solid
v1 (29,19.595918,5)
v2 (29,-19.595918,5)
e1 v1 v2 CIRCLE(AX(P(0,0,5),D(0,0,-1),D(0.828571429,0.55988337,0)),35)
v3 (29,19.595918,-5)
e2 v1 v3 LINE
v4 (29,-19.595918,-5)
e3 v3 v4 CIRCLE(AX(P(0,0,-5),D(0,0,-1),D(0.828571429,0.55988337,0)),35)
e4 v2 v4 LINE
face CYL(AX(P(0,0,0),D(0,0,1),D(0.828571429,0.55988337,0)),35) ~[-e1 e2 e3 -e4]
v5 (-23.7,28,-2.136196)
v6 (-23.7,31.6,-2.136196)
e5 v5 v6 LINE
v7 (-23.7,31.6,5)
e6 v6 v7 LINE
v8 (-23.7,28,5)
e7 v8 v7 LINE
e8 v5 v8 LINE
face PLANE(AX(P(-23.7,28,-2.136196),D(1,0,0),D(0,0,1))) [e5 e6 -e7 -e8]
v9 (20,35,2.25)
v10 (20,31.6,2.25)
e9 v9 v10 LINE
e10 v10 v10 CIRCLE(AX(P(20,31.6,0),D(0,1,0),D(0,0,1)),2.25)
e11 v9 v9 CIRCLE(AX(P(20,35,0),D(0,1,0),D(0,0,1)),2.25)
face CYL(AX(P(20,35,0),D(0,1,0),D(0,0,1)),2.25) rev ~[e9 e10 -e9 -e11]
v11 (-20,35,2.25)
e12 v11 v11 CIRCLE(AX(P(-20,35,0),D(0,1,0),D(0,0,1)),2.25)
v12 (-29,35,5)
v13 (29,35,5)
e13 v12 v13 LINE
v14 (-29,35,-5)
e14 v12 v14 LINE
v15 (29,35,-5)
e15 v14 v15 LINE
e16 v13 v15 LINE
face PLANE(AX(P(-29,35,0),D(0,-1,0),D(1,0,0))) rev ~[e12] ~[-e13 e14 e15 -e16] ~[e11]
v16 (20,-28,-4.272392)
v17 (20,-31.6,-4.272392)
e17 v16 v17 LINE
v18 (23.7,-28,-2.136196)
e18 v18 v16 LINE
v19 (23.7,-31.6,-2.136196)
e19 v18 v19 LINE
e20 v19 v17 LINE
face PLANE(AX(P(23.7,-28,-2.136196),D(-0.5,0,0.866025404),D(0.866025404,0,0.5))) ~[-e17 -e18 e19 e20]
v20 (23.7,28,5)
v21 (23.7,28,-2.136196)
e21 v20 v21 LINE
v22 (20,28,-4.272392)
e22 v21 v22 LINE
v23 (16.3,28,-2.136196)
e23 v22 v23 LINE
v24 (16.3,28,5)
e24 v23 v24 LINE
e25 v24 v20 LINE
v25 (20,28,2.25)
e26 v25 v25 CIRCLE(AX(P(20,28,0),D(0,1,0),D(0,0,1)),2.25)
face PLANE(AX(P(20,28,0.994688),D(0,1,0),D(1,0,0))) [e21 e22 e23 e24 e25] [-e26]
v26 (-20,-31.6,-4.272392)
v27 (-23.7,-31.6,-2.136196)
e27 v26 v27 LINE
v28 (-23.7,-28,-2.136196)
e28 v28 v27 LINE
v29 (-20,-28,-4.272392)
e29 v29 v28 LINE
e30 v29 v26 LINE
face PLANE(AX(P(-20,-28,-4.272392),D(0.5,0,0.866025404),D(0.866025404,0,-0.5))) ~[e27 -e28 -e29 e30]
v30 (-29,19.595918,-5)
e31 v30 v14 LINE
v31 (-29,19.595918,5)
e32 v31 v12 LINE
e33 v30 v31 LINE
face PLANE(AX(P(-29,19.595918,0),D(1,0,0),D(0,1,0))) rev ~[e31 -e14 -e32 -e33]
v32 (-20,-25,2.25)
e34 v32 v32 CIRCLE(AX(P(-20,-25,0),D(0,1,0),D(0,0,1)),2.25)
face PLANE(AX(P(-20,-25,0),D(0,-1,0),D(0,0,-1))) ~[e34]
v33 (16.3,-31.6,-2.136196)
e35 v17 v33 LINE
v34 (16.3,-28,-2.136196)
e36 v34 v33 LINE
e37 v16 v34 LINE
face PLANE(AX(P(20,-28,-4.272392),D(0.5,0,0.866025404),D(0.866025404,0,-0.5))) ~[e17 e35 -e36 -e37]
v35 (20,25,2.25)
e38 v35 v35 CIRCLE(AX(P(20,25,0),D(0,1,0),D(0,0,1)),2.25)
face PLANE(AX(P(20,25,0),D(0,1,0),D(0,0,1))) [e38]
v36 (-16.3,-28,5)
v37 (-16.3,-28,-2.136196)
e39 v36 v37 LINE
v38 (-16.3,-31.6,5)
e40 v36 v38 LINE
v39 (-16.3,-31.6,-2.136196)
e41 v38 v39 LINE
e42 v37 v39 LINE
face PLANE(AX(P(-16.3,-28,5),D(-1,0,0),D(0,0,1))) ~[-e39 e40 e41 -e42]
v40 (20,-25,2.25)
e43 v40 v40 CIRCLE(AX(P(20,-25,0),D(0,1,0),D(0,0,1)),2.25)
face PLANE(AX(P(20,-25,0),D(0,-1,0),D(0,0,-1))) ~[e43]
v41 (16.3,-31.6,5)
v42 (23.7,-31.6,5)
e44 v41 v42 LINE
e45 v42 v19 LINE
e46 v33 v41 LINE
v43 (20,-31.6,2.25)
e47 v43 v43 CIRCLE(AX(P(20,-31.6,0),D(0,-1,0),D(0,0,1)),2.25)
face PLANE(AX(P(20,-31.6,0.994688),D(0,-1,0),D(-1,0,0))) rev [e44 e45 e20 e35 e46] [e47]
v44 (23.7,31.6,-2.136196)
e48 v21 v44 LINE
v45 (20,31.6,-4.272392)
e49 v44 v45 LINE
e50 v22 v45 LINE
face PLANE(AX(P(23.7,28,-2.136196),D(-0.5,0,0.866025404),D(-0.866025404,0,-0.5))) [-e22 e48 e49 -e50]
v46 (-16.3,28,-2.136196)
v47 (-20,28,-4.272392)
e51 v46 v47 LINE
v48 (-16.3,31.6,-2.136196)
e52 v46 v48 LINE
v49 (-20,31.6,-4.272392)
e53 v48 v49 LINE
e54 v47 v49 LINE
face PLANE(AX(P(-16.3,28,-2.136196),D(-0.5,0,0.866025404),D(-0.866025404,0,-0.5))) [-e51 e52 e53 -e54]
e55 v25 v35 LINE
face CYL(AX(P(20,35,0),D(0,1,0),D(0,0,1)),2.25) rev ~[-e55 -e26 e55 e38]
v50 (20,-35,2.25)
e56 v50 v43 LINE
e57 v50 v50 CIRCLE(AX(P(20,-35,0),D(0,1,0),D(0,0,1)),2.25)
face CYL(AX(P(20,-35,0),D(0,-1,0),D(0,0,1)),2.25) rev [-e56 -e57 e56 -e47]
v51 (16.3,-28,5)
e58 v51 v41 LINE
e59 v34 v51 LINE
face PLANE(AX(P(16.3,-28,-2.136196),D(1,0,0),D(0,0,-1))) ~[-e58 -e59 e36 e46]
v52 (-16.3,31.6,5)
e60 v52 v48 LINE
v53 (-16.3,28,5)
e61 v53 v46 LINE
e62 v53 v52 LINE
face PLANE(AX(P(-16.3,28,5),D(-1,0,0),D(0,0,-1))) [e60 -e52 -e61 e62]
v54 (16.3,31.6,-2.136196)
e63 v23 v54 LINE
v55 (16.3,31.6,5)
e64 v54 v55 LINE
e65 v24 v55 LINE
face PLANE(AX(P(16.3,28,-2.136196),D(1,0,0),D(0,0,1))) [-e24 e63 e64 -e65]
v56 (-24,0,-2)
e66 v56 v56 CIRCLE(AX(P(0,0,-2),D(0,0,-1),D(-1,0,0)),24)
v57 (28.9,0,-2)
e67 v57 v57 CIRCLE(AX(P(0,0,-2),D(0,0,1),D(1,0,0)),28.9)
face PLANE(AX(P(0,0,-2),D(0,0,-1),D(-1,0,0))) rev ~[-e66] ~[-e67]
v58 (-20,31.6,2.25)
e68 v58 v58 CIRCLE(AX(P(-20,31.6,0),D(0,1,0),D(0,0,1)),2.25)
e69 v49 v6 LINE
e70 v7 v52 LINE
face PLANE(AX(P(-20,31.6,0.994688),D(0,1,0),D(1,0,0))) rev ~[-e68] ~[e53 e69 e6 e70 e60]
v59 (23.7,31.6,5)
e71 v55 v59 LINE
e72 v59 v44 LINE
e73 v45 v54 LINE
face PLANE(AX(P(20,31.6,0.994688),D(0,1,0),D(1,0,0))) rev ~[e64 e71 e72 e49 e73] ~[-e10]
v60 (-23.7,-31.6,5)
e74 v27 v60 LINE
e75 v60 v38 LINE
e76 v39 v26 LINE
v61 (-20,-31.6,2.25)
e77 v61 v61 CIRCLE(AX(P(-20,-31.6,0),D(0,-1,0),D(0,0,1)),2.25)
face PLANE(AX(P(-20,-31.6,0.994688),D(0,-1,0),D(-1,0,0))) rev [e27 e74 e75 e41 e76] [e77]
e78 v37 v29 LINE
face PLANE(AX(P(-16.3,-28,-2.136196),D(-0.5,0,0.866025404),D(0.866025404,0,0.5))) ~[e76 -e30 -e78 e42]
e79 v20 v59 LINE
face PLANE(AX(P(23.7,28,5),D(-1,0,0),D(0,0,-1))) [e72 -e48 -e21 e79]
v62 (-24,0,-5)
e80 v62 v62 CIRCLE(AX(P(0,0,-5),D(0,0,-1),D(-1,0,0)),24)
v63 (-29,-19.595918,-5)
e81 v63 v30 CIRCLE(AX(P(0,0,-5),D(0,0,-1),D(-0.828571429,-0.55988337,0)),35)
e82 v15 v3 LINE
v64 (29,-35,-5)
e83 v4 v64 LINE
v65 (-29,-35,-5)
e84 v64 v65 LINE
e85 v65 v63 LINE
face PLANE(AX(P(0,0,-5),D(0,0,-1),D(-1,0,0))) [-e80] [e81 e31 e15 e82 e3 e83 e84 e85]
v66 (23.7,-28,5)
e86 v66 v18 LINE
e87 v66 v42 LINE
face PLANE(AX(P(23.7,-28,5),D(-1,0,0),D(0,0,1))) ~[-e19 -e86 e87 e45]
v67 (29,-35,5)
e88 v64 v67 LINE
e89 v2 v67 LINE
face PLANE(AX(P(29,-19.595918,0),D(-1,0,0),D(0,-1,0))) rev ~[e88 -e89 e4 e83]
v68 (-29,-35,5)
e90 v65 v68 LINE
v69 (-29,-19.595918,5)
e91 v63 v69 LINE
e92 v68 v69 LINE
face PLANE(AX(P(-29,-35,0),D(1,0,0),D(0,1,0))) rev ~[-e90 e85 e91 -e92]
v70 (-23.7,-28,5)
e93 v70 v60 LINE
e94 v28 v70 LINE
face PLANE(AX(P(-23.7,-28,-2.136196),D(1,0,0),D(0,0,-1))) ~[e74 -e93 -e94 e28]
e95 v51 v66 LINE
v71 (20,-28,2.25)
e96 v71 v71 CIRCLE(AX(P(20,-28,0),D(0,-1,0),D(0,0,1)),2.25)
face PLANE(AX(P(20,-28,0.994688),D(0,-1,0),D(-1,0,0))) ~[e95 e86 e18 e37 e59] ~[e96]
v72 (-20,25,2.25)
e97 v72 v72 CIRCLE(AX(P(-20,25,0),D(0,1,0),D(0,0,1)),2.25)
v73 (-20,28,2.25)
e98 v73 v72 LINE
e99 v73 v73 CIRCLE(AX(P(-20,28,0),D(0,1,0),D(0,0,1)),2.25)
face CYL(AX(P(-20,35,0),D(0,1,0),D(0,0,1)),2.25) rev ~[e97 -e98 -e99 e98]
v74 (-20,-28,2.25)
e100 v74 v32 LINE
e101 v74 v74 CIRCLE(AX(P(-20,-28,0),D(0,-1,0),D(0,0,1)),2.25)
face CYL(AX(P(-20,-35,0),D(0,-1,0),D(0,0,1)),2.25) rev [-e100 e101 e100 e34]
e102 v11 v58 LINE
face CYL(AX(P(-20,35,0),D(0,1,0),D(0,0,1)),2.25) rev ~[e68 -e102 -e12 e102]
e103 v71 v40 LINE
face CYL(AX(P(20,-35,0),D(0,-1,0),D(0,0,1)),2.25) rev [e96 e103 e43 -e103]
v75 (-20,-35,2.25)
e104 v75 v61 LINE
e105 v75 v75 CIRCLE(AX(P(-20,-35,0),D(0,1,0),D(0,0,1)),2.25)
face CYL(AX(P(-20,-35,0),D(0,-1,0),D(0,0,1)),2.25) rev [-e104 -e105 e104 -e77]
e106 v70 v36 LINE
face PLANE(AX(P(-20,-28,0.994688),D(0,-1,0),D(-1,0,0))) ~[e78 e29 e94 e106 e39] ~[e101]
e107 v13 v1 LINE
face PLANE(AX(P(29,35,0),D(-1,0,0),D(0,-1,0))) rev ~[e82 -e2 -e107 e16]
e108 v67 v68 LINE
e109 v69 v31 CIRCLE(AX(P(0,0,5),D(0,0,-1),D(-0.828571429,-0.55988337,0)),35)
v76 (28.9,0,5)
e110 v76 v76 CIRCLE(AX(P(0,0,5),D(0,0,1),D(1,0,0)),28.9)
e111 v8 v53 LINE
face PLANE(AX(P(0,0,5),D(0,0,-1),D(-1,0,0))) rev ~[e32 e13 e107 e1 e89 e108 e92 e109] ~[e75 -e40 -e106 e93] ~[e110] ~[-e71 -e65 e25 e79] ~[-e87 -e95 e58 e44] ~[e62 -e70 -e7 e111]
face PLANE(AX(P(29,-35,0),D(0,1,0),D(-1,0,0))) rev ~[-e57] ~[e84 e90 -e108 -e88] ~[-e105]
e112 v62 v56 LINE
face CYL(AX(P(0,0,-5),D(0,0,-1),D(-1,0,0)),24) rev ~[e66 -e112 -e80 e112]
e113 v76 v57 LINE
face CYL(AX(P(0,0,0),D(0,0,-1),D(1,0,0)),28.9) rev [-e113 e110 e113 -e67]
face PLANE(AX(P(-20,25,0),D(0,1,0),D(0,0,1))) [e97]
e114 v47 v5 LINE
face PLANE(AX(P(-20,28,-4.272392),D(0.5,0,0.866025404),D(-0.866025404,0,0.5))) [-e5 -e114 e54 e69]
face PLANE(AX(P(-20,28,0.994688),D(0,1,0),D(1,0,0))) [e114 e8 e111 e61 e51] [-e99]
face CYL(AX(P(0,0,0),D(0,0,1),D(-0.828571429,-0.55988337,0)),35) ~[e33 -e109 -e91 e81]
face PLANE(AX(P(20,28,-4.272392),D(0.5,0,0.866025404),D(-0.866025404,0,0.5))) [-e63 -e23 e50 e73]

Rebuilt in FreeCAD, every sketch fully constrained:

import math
import FreeCAD as App
import Part
import Sketcher
Q = App.Units.Quantity


def add_polygon(sketch, points):
    """Adds a closed chain of lines whose ends are joined by coincident constraints."""
    first, n = sketch.GeometryCount, len(points)
    for a, b in zip(points, points[1:] + points[:1]):
        sketch.addGeometry(Part.LineSegment(App.Vector(*a, 0), App.Vector(*b, 0)), False)
    for i in range(n):
        sketch.addConstraint(Sketcher.Constraint("Coincident", first + i, 2, first + (i + 1) % n, 1))

doc = App.newDocument("Part")
body = doc.addObject("PartDesign::Body", "Body")

sketch1 = body.newObject("Sketcher::SketchObject", "Sketch")
sketch1.AttachmentSupport = (doc.getObject("XY_Plane"), [""])
sketch1.MapMode = "FlatFace"
sketch1.addGeometry([
    Part.LineSegment(App.Vector(-29, 35, 0), App.Vector(-29, 20, 0)),
    Part.ArcOfCircle(Part.Circle(App.Vector(0, 0, 0), App.Vector(0, 0, 1), 35), math.radians(146), math.radians(214)),
    Part.LineSegment(App.Vector(-29, -20, 0), App.Vector(-29, -35, 0)),
    Part.LineSegment(App.Vector(-29, -35, 0), App.Vector(29, -35, 0)),
    Part.LineSegment(App.Vector(29, -35, 0), App.Vector(29, -20, 0)),
    Part.ArcOfCircle(Part.Circle(App.Vector(0, 0, 0), App.Vector(0, 0, 1), 35), math.radians(-34), math.radians(34)),
    Part.LineSegment(App.Vector(29, 20, 0), App.Vector(29, 35, 0)),
    Part.LineSegment(App.Vector(29, 35, 0), App.Vector(-29, 35, 0)),
    Part.Circle(App.Vector(0, 0, 0), App.Vector(0, 0, 1), 29),
], False)
sketch1.addConstraint([
    Sketcher.Constraint("Coincident", 0, 2, 1, 1),
    Sketcher.Constraint("Coincident", 1, 2, 2, 1),
    Sketcher.Constraint("Coincident", 2, 2, 3, 1),
    Sketcher.Constraint("Coincident", 3, 2, 4, 1),
    Sketcher.Constraint("Coincident", 4, 2, 5, 1),
    Sketcher.Constraint("Coincident", 5, 2, 6, 1),
    Sketcher.Constraint("Coincident", 6, 2, 7, 1),
    Sketcher.Constraint("Coincident", 7, 2, 0, 1),
    Sketcher.Constraint("Vertical", 0),
    Sketcher.Constraint("Vertical", 2),
    Sketcher.Constraint("Horizontal", 3),
    Sketcher.Constraint("Vertical", 4),
    Sketcher.Constraint("Vertical", 6),
    Sketcher.Constraint("Horizontal", 7),
    Sketcher.Constraint("Coincident", 1, 3, -1, 1),
    Sketcher.Constraint("Coincident", 5, 3, -1, 1),
    Sketcher.Constraint("Coincident", 8, 3, -1, 1),
    Sketcher.Constraint("Equal", 1, 5),
    Sketcher.Constraint("Symmetric", 2, 2, 6, 2, -1, 1),
    Sketcher.Constraint("Horizontal", 1, 2, 4, 2),
    Sketcher.Constraint("Horizontal", 0, 2, 5, 2),
    Sketcher.Constraint("Radius", 1, Q("35 mm")),
    Sketcher.Constraint("Diameter", 8, Q("57.8 mm")),
    Sketcher.Constraint("DistanceX", 3, 1, 3, 2, Q("58 mm")),
    Sketcher.Constraint("DistanceY", 2, 2, -1, 1, Q("35 mm")),
])
pad1 = body.newObject("PartDesign::Pad", "Pad")
pad1.Profile = sketch1
pad1.Length = 10
pad1.Midplane = True

sketch2 = body.newObject("Sketcher::SketchObject", "Sketch001")
sketch2.AttachmentSupport = (doc.getObject("XY_Plane"), [""])
sketch2.MapMode = "FlatFace"
sketch2.AttachmentOffset = App.Placement(App.Vector(0, 0, -5), App.Rotation())
sketch2.addGeometry([
    Part.Circle(App.Vector(0, 0, 0), App.Vector(0, 0, 1), 29),
    Part.Circle(App.Vector(0, 0, 0), App.Vector(0, 0, 1), 24),
], False)
sketch2.addConstraint([
    Sketcher.Constraint("Coincident", 0, 3, -1, 1),
    Sketcher.Constraint("Coincident", 1, 3, -1, 1),
    Sketcher.Constraint("Diameter", 1, Q("48 mm")),
    Sketcher.Constraint("Diameter", 0, Q("57.8 mm")),
])
pad2 = body.newObject("PartDesign::Pad", "Pad001")
pad2.Profile = sketch2
pad2.Length = 3

sketch3 = body.newObject("Sketcher::SketchObject", "Sketch002")
sketch3.AttachmentSupport = (doc.getObject("XZ_Plane"), [""])
sketch3.MapMode = "FlatFace"
sketch3.AttachmentOffset = App.Placement(App.Vector(0, 0, -28), App.Rotation())
add_polygon(sketch3, [(-23.7, 5), (-16.3, 5), (-16.3, -2.1), (-20, -4.3), (-23.7, -2.1)])
add_polygon(sketch3, [(16.3, -2.1), (16.3, 5), (23.7, 5), (23.7, -2.1), (20, -4.3)])
sketch3.addConstraint([
    Sketcher.Constraint("Horizontal", 0),
    Sketcher.Constraint("Vertical", 1),
    Sketcher.Constraint("Vertical", 4),
    Sketcher.Constraint("Vertical", 5),
    Sketcher.Constraint("Horizontal", 6),
    Sketcher.Constraint("Vertical", 7),
    Sketcher.Constraint("Symmetric", 0, 2, 5, 2, -2),
    Sketcher.Constraint("Symmetric", 3, 2, 7, 2, -2),
    Sketcher.Constraint("Symmetric", 2, 2, 8, 2, -2),
    Sketcher.Constraint("Parallel", 2, 8),
    Sketcher.Constraint("Parallel", 3, 9),
    Sketcher.Constraint("Horizontal", 1, 2, 3, 2),
    Sketcher.Constraint("Angle", 2, Q("-150 deg")),
    Sketcher.Constraint("DistanceX", 0, 1, 0, 2, Q("7.4 mm")),
    Sketcher.Constraint("DistanceY", -1, 1, 0, 2, Q("5 mm")),
    Sketcher.Constraint("DistanceX", 2, 2, -1, 1, Q("20 mm")),
    Sketcher.Constraint("DistanceY", 1, 2, 1, 1, Q("7.136196 mm")),
])
pocket1 = body.newObject("PartDesign::Pocket", "Pocket")
pocket1.Profile = sketch3
pocket1.Length = 3.6

sketch4 = body.newObject("Sketcher::SketchObject", "Sketch003")
sketch4.AttachmentSupport = (doc.getObject("XZ_Plane"), [""])
sketch4.MapMode = "FlatFace"
sketch4.AttachmentOffset = App.Placement(App.Vector(0, 0, -35), App.Rotation())
sketch4.addGeometry([
    Part.Circle(App.Vector(-20, 0, 0), App.Vector(0, 0, 1), 2.2),
    Part.Circle(App.Vector(20, 0, 0), App.Vector(0, 0, 1), 2.2),
], False)
sketch4.addConstraint([
    Sketcher.Constraint("Equal", 0, 1),
    Sketcher.Constraint("Symmetric", 0, 3, 1, 3, -1, 1),
    Sketcher.Constraint("PointOnObject", 0, 3, -1),
    Sketcher.Constraint("Diameter", 0, Q("4.5 mm")),
    Sketcher.Constraint("DistanceX", 0, 3, -1, 1, Q("20 mm")),
])
pocket2 = body.newObject("PartDesign::Pocket", "Pocket001")
pocket2.Profile = sketch4
pocket2.Length = 10
pocket2.Reversed = True
doc.recompute()

mirrored = body.newObject("PartDesign::Mirrored", "Mirrored")
mirrored.Originals = [pocket1, pocket2]
mirrored.MirrorPlane = (doc.getObject("XZ_Plane"), [""])
body.Tip = mirrored

doc.recompute()
